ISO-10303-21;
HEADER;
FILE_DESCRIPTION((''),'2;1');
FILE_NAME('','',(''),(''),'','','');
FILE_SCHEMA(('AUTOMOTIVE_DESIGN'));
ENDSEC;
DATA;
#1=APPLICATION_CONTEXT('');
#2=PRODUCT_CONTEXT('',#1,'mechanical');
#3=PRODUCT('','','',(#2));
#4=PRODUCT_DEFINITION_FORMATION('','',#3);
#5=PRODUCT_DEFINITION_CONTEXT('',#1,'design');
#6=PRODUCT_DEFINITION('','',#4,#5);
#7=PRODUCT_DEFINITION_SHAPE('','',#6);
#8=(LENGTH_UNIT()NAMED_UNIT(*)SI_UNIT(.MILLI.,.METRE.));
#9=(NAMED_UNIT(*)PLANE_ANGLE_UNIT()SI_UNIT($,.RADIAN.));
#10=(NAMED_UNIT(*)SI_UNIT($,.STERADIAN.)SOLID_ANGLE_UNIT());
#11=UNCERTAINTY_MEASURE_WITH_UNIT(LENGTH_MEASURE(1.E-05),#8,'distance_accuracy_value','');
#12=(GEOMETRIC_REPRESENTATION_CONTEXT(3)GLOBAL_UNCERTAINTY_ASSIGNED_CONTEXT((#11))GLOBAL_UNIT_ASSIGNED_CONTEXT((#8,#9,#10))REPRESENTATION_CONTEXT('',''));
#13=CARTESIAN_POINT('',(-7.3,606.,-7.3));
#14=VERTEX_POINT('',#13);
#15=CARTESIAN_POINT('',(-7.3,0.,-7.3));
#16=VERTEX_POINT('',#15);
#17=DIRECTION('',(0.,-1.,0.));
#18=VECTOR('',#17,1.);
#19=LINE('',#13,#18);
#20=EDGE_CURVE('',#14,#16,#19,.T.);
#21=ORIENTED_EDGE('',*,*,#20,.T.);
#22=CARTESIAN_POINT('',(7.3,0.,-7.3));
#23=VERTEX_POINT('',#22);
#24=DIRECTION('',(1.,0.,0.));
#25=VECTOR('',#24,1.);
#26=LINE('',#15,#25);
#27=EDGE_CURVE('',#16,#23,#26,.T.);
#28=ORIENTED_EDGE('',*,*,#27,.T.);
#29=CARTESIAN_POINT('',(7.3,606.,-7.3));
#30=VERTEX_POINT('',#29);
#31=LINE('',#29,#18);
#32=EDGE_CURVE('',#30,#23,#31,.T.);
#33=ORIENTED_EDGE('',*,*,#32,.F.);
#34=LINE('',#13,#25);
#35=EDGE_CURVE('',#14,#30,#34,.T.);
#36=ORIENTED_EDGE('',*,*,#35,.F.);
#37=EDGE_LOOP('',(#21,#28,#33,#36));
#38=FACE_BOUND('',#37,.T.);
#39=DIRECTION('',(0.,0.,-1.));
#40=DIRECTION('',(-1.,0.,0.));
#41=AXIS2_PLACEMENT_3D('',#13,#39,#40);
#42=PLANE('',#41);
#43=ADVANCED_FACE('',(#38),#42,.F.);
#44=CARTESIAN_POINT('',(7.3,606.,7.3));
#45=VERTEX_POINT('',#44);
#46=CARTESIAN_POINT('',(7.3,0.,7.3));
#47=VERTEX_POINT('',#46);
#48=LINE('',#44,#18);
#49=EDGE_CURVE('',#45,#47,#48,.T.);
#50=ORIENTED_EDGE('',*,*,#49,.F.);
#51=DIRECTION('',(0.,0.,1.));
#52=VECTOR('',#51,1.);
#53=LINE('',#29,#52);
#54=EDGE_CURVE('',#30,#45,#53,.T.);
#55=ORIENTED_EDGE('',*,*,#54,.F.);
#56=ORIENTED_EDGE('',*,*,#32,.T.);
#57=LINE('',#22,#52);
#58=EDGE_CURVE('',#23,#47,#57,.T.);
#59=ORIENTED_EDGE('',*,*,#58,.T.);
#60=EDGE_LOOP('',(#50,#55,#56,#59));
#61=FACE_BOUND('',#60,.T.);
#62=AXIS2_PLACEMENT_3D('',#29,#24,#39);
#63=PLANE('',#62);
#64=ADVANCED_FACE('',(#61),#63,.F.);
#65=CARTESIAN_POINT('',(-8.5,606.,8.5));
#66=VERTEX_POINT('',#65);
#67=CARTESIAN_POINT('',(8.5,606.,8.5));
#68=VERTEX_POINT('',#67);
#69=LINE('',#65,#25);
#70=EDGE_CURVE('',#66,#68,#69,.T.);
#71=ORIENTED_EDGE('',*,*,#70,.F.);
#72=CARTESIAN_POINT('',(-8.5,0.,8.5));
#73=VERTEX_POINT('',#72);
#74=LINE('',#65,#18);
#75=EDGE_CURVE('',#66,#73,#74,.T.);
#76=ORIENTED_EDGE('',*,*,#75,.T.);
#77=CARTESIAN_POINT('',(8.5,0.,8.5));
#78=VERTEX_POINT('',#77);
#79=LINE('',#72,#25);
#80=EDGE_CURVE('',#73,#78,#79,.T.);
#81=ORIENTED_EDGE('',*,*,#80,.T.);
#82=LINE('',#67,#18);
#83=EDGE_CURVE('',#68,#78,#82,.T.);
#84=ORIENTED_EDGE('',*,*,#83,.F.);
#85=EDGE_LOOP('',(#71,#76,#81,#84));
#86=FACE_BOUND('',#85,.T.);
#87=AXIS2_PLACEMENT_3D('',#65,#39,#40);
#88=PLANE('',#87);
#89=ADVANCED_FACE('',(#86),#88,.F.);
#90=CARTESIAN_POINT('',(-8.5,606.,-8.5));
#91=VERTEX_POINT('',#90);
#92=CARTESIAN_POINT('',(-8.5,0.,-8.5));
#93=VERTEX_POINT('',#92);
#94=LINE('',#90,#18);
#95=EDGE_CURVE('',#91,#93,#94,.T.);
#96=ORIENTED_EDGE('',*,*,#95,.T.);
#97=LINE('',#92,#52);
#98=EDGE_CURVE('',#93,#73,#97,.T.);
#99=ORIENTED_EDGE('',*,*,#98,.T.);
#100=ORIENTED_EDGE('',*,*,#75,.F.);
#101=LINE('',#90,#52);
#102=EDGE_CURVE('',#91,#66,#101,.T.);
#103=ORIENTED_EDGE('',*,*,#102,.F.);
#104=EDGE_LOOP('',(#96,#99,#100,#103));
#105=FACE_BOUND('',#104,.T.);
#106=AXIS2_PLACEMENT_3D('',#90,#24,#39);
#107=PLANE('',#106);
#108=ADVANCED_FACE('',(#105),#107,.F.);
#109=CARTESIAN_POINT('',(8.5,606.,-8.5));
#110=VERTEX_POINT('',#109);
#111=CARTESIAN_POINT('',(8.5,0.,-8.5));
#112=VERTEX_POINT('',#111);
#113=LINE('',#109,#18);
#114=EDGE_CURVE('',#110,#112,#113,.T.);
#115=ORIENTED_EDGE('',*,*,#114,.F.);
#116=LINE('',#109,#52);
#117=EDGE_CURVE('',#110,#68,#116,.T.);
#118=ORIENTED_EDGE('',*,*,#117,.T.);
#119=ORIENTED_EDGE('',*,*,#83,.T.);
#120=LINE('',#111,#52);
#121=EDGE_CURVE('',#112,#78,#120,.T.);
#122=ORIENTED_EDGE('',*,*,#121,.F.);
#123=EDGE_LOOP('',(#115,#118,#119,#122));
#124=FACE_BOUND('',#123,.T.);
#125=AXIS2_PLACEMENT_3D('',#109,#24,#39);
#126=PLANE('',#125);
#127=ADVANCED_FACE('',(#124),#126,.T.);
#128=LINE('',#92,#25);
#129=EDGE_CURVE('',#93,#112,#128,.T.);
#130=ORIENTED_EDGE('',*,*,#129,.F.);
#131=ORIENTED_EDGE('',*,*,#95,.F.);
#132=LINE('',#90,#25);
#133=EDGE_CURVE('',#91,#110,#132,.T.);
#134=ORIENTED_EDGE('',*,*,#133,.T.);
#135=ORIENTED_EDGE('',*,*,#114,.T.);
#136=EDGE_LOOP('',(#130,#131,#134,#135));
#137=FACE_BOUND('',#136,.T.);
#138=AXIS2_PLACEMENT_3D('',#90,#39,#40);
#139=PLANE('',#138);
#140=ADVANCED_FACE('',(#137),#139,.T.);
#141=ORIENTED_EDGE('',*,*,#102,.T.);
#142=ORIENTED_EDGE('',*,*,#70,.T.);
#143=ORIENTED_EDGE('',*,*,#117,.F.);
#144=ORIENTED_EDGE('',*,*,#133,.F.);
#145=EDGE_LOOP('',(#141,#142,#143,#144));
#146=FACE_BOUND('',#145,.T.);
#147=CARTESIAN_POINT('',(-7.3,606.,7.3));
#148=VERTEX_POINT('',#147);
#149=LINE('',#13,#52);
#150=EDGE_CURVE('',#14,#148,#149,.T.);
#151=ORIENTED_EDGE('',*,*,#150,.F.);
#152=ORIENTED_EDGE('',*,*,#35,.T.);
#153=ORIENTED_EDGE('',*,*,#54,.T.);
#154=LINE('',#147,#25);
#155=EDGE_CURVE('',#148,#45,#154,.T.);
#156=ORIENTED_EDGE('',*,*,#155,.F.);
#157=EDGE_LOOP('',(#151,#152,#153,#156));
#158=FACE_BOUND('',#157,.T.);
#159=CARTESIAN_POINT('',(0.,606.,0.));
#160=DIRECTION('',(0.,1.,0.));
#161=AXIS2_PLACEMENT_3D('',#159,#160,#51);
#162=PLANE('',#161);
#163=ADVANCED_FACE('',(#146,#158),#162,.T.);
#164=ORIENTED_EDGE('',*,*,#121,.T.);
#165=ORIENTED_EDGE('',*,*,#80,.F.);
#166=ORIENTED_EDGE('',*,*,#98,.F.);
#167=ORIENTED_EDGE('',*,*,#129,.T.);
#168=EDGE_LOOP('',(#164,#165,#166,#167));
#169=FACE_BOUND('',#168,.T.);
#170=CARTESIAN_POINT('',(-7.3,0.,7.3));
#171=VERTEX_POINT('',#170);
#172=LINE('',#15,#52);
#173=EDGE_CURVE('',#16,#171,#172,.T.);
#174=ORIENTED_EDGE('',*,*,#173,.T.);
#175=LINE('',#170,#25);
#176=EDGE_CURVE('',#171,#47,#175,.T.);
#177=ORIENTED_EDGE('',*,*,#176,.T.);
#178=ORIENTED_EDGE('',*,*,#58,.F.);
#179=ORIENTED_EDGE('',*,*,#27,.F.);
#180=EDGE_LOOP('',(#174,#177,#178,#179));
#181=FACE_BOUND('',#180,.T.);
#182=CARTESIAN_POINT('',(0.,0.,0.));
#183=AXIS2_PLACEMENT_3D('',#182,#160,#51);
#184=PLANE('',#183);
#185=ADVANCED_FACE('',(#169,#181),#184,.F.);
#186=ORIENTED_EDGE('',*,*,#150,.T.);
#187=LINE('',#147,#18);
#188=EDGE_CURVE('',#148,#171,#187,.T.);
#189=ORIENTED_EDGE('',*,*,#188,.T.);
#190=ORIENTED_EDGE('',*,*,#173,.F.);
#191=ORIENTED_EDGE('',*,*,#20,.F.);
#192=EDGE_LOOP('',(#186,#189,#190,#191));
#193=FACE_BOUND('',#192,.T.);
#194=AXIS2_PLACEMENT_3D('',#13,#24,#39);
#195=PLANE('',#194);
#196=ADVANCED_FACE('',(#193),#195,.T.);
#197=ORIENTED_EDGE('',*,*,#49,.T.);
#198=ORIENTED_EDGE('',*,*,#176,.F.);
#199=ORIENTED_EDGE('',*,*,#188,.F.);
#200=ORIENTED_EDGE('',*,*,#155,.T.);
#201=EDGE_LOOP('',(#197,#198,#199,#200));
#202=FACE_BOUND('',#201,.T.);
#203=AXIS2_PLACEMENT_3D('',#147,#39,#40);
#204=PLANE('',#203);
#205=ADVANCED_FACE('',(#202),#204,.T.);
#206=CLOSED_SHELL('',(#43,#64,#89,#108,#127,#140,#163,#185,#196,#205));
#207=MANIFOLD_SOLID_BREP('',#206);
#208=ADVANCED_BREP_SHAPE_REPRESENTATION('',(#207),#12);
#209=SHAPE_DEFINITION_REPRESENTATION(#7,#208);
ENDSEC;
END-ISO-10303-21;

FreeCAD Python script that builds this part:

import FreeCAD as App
import Part
import Sketcher
from FreeCAD import Vector
Q = App.Units.Quantity

doc = App.newDocument("Part")
body = doc.addObject("PartDesign::Body", "Body")

# Sketch on XZ plane
sketch1 = body.newObject("Sketcher::SketchObject", "Sketch")
sketch1.AttachmentSupport = (doc.getObject("XZ_Plane"), [""])
sketch1.MapMode = "FlatFace"
sketch1.addGeometry([
    Part.LineSegment(Vector(-8.5, -8.5, 0), Vector(-8.5, 8.5, 0)),  # 0
    Part.LineSegment(Vector(-8.5, 8.5, 0), Vector(8.5, 8.5, 0)),  # 1
    Part.LineSegment(Vector(8.5, 8.5, 0), Vector(8.5, -8.5, 0)),  # 2
    Part.LineSegment(Vector(8.5, -8.5, 0), Vector(-8.5, -8.5, 0)),  # 3
    Part.LineSegment(Vector(7.3, 7.3, 0), Vector(-7.3, 7.3, 0)),  # 4
    Part.LineSegment(Vector(-7.3, 7.3, 0), Vector(-7.3, -7.3, 0)),  # 5
    Part.LineSegment(Vector(-7.3, -7.3, 0), Vector(7.3, -7.3, 0)),  # 6
    Part.LineSegment(Vector(7.3, -7.3, 0), Vector(7.3, 7.3, 0)),  # 7
], False)
sketch1.addConstraint([
    Sketcher.Constraint("Coincident", 0, 2, 1, 1),
    Sketcher.Constraint("Coincident", 1, 2, 2, 1),
    Sketcher.Constraint("Coincident", 2, 2, 3, 1),
    Sketcher.Constraint("Coincident", 3, 2, 0, 1),
    Sketcher.Constraint("Coincident", 4, 2, 5, 1),
    Sketcher.Constraint("Coincident", 5, 2, 6, 1),
    Sketcher.Constraint("Coincident", 6, 2, 7, 1),
    Sketcher.Constraint("Coincident", 7, 2, 4, 1),
    Sketcher.Constraint("Vertical", 0),
    Sketcher.Constraint("Horizontal", 1),
    Sketcher.Constraint("Vertical", 2),
    Sketcher.Constraint("Horizontal", 3),
    Sketcher.Constraint("Horizontal", 4),
    Sketcher.Constraint("Vertical", 5),
    Sketcher.Constraint("Horizontal", 6),
    Sketcher.Constraint("Vertical", 7),
    Sketcher.Constraint("Symmetric", 0, 2, 2, 2, -1, 1),
    Sketcher.Constraint("Symmetric", 4, 2, 6, 2, -1, 1),
    Sketcher.Constraint("Equal", 3, 0),
    Sketcher.Constraint("Equal", 6, 5),
    Sketcher.Constraint("DistanceX", 1, 1, 1, 2, Q("17 mm")),
    Sketcher.Constraint("DistanceX", 4, 2, 4, 1, Q("14.6 mm")),
])
pad1 = body.newObject("PartDesign::Pad", "Pad")
pad1.Profile = sketch1
pad1.Length = 606
pad1.Reversed = True

doc.recompute()
